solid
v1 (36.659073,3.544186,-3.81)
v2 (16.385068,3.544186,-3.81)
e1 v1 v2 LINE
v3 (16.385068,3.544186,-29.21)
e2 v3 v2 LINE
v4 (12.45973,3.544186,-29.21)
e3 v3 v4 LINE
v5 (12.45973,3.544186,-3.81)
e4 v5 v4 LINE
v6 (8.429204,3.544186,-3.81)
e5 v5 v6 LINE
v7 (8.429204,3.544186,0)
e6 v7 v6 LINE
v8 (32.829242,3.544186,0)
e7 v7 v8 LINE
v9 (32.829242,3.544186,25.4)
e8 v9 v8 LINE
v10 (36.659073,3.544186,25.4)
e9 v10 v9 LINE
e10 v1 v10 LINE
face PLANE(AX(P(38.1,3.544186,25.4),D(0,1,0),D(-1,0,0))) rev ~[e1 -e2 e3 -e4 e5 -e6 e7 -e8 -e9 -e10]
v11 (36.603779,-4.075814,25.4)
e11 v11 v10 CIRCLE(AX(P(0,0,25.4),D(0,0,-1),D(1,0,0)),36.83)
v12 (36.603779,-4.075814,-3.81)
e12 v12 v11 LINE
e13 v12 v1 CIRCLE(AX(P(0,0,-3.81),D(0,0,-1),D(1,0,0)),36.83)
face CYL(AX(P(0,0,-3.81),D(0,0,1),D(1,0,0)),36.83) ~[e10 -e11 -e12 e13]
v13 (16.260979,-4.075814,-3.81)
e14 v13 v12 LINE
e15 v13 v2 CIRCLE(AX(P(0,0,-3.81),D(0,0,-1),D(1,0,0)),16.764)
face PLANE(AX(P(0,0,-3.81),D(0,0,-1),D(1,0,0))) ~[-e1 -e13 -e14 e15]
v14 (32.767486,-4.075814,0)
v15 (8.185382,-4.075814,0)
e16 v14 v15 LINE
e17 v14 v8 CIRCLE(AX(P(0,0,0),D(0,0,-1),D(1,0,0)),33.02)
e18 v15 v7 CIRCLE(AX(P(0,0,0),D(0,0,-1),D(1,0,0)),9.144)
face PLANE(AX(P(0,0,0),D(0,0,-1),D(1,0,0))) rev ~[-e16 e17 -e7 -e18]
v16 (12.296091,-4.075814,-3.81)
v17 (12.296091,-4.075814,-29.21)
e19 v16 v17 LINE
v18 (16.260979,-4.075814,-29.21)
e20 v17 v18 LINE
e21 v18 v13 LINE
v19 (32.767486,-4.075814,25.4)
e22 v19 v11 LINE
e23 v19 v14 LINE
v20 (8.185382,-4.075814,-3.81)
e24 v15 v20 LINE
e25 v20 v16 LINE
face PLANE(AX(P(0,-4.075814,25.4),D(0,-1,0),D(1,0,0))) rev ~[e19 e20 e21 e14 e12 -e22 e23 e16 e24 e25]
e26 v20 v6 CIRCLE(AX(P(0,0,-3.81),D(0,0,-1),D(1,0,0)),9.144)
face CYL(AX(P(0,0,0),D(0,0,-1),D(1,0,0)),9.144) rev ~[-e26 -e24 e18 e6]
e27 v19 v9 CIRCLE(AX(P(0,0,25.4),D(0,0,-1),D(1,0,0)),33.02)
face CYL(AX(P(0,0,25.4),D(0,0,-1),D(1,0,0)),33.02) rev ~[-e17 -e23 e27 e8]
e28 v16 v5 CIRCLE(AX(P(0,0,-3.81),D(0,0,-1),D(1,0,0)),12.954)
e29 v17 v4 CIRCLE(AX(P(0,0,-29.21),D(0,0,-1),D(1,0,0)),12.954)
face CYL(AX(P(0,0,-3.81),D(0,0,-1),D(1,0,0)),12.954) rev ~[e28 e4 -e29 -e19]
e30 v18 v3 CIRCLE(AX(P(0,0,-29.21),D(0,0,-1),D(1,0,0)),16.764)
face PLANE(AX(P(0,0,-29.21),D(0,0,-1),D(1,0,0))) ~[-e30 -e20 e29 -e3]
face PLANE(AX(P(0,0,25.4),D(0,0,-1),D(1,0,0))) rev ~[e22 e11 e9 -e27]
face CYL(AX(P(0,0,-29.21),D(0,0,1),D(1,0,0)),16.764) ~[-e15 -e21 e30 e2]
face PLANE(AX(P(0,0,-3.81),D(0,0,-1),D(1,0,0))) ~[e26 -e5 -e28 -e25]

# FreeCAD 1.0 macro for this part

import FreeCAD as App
import Part
import Sketcher
Q = App.Units.Quantity

doc = App.newDocument("Part")
body = doc.addObject("PartDesign::Body", "Body")

# Sketch on XZ plane
sketch1 = body.newObject("Sketcher::SketchObject", "Sketch")
sketch1.AttachmentSupport = (doc.getObject("XZ_Plane"), [""])
sketch1.MapMode = "FlatFace"
sketch1.addGeometry(Part.LineSegment(App.Vector(13, -3.8, 0), App.Vector(13, -29.2, 0)), False)
sketch1.addGeometry(Part.LineSegment(App.Vector(13, -29.2, 0), App.Vector(16.8, -29.2, 0)), False)
sketch1.addGeometry(Part.LineSegment(App.Vector(16.8, -29.2, 0), App.Vector(16.8, -3.8, 0)), False)
sketch1.addGeometry(Part.LineSegment(App.Vector(16.8, -3.8, 0), App.Vector(36.8, -3.8, 0)), False)
sketch1.addGeometry(Part.LineSegment(App.Vector(36.8, -3.8, 0), App.Vector(36.8, 25.4, 0)), False)
sketch1.addGeometry(Part.LineSegment(App.Vector(36.8, 25.4, 0), App.Vector(33, 25.4, 0)), False)
sketch1.addGeometry(Part.LineSegment(App.Vector(33, 25.4, 0), App.Vector(33, 0, 0)), False)
sketch1.addGeometry(Part.LineSegment(App.Vector(33, 0, 0), App.Vector(9.1, 0, 0)), False)
sketch1.addGeometry(Part.LineSegment(App.Vector(9.1, 0, 0), App.Vector(9.1, -3.8, 0)), False)
sketch1.addGeometry(Part.LineSegment(App.Vector(9.1, -3.8, 0), App.Vector(13, -3.8, 0)), False)
sketch1.addConstraint(Sketcher.Constraint("Coincident", 0, 2, 1, 1))
sketch1.addConstraint(Sketcher.Constraint("Coincident", 1, 2, 2, 1))
sketch1.addConstraint(Sketcher.Constraint("Coincident", 2, 2, 3, 1))
sketch1.addConstraint(Sketcher.Constraint("Coincident", 3, 2, 4, 1))
sketch1.addConstraint(Sketcher.Constraint("Coincident", 4, 2, 5, 1))
sketch1.addConstraint(Sketcher.Constraint("Coincident", 5, 2, 6, 1))
sketch1.addConstraint(Sketcher.Constraint("Coincident", 6, 2, 7, 1))
sketch1.addConstraint(Sketcher.Constraint("Coincident", 7, 2, 8, 1))
sketch1.addConstraint(Sketcher.Constraint("Coincident", 8, 2, 9, 1))
sketch1.addConstraint(Sketcher.Constraint("Coincident", 9, 2, 0, 1))
sketch1.addConstraint(Sketcher.Constraint("Vertical", 0))
sketch1.addConstraint(Sketcher.Constraint("Horizontal", 1))
sketch1.addConstraint(Sketcher.Constraint("Vertical", 2))
sketch1.addConstraint(Sketcher.Constraint("Horizontal", 3))
sketch1.addConstraint(Sketcher.Constraint("Vertical", 4))
sketch1.addConstraint(Sketcher.Constraint("Horizontal", 5))
sketch1.addConstraint(Sketcher.Constraint("Vertical", 6))
sketch1.addConstraint(Sketcher.Constraint("Horizontal", 7))
sketch1.addConstraint(Sketcher.Constraint("Vertical", 8))
sketch1.addConstraint(Sketcher.Constraint("Horizontal", 9))
sketch1.addConstraint(Sketcher.Constraint("PointOnObject", 6, 2, -1))
sketch1.addConstraint(Sketcher.Constraint("Horizontal", 3, 2, 8, 2))
sketch1.addConstraint(Sketcher.Constraint("Equal", 1, 5))
sketch1.addConstraint(Sketcher.Constraint("Equal", 5, 9))
sketch1.addConstraint(Sketcher.Constraint("Equal", 2, 6))
sketch1.addConstraint(Sketcher.Constraint("Equal", 9, 8))
sketch1.addConstraint(Sketcher.Constraint("DistanceY", 0, 2, 0, 1, Q("1 in")))
sketch1.addConstraint(Sketcher.Constraint("DistanceX", 1, 1, 1, 2, Q("0.15 in")))
sketch1.addConstraint(Sketcher.Constraint("DistanceX", 3, 1, 3, 2, Q("0.79 in")))
sketch1.addConstraint(Sketcher.Constraint("DistanceX", -1, 1, 5, 2, Q("1.3 in")))
revolution = body.newObject("PartDesign::Revolution", "Revolution")
revolution.Profile = sketch1
revolution.ReferenceAxis = (sketch1, ["V_Axis"])
revolution.Angle = 360

# Sketch on XY plane
sketch2 = body.newObject("Sketcher::SketchObject", "Sketch001")
sketch2.AttachmentSupport = (doc.getObject("XY_Plane"), [""])
sketch2.MapMode = "FlatFace"
sketch2.AttachmentOffset = App.Placement(App.Vector(0, 0, 1 * 25.4), App.Rotation())
sketch2.addGeometry(Part.LineSegment(App.Vector(0, 4, 0), App.Vector(0, -4, 0)), False)
sketch2.addGeometry(Part.LineSegment(App.Vector(0, -4, 0), App.Vector(38, -4, 0)), False)
sketch2.addGeometry(Part.LineSegment(App.Vector(38, -4, 0), App.Vector(38, 4, 0)), False)
sketch2.addGeometry(Part.LineSegment(App.Vector(38, 4, 0), App.Vector(0, 4, 0)), False)
sketch2.addConstraint(Sketcher.Constraint("Coincident", 0, 2, 1, 1))
sketch2.addConstraint(Sketcher.Constraint("Coincident", 1, 2, 2, 1))
sketch2.addConstraint(Sketcher.Constraint("Coincident", 2, 2, 3, 1))
sketch2.addConstraint(Sketcher.Constraint("Coincident", 3, 2, 0, 1))
sketch2.addConstraint(Sketcher.Constraint("Vertical", 0))
sketch2.addConstraint(Sketcher.Constraint("Horizontal", 1))
sketch2.addConstraint(Sketcher.Constraint("Vertical", 2))
sketch2.addConstraint(Sketcher.Constraint("Horizontal", 3))
sketch2.addConstraint(Sketcher.Constraint("PointOnObject", 0, 2, -2))
sketch2.addConstraint(Sketcher.Constraint("DistanceX", 1, 1, 1, 2, Q("1.5 in")))
sketch2.addConstraint(Sketcher.Constraint("DistanceY", 0, 2, 0, 1, Q("0.3 in")))
sketch2.addConstraint(Sketcher.Constraint("DistanceY", 0, 2, -1, 1, 4.075814))
pocket1 = body.newObject("PartDesign::Pocket", "Pocket")
pocket1.Profile = sketch2
pocket1.Type = "ThroughAll"

doc.recompute()
